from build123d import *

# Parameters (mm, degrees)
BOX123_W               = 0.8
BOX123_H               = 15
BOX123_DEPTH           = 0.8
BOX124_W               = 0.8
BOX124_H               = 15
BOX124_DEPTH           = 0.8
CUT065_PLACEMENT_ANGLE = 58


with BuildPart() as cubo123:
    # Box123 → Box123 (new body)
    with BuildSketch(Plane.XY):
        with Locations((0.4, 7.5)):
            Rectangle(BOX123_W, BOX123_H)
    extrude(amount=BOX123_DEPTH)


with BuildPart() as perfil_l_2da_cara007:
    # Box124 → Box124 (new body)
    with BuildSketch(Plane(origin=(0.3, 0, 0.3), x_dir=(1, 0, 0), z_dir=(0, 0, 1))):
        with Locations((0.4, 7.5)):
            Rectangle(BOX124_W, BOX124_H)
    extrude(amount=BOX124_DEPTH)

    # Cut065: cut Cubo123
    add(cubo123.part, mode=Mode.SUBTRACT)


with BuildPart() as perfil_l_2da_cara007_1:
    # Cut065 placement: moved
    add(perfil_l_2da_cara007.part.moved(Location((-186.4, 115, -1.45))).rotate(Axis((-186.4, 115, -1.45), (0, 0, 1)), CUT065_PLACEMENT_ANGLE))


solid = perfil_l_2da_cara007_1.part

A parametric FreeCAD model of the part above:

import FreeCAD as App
import Part
import Sketcher

V = App.Vector
Q = App.Units.Quantity

doc = App.newDocument("Part")
body = doc.addObject("PartDesign::Body", "Body")

# Sketch on XY plane
sketch1 = body.newObject("Sketcher::SketchObject", "Sketch")
sketch1.AttachmentSupport = (doc.getObject("XY_Plane"), [""])
sketch1.MapMode = "FlatFace"
sketch1.addGeometry([
    Part.LineSegment(V(0, 15, 0), V(0, 0, 0)),
    Part.LineSegment(V(0, 0, 0), V(0.8, 0, 0)),
    Part.LineSegment(V(0.8, 0, 0), V(0.8, 15, 0)),
    Part.LineSegment(V(0.8, 15, 0), V(0, 15, 0)),
], False)
sketch1.addConstraint([
    Sketcher.Constraint("Coincident", 0, 2, 1, 1),
    Sketcher.Constraint("Coincident", 1, 2, 2, 1),
    Sketcher.Constraint("Coincident", 2, 2, 3, 1),
    Sketcher.Constraint("Coincident", 3, 2, 0, 1),
    Sketcher.Constraint("Vertical", 0),
    Sketcher.Constraint("Horizontal", 1),
    Sketcher.Constraint("Vertical", 2),
    Sketcher.Constraint("Horizontal", 3),
    Sketcher.Constraint("Coincident", 0, 2, -1, 1),
    Sketcher.Constraint("DistanceY", 0, 2, 0, 1, Q("15 mm")),
    Sketcher.Constraint("DistanceX", 1, 1, 1, 2, Q("0.8 mm")),
])
pad1 = body.newObject("PartDesign::Pad", "Pad")
pad1.Profile = sketch1
pad1.Length = 0.8
body2 = doc.addObject("PartDesign::Body", "Body001")

# Sketch on XY plane
sketch2 = body2.newObject("Sketcher::SketchObject", "Sketch001")
sketch2.AttachmentSupport = (doc.getObject("XY_Plane001"), [""])
sketch2.MapMode = "FlatFace"
sketch2.AttachmentOffset = App.Placement(V(0, 0, 0.3), App.Rotation())
sketch2.addGeometry([
    Part.LineSegment(V(0.3, 15, 0), V(0.3, 0, 0)),
    Part.LineSegment(V(0.3, 0, 0), V(1.1, 0, 0)),
    Part.LineSegment(V(1.1, 0, 0), V(1.1, 15, 0)),
    Part.LineSegment(V(1.1, 15, 0), V(0.3, 15, 0)),
], False)
sketch2.addConstraint([
    Sketcher.Constraint("Coincident", 0, 2, 1, 1),
    Sketcher.Constraint("Coincident", 1, 2, 2, 1),
    Sketcher.Constraint("Coincident", 2, 2, 3, 1),
    Sketcher.Constraint("Coincident", 3, 2, 0, 1),
    Sketcher.Constraint("Vertical", 0),
    Sketcher.Constraint("Horizontal", 1),
    Sketcher.Constraint("Vertical", 2),
    Sketcher.Constraint("Horizontal", 3),
    Sketcher.Constraint("PointOnObject", 0, 2, -1),
    Sketcher.Constraint("DistanceY", 0, 2, 0, 1, Q("15 mm")),
    Sketcher.Constraint("DistanceX", 1, 1, 1, 2, Q("0.8 mm")),
    Sketcher.Constraint("DistanceX", -1, 1, 0, 2, Q("0.3 mm")),
])
pad2 = body2.newObject("PartDesign::Pad", "Pad001")
pad2.Profile = sketch2
pad2.Length = 0.8
doc.recompute()

boolean = body2.newObject("PartDesign::Boolean", "Boolean")
boolean.Type = "Cut"
boolean.addObjects([body])
body3 = doc.addObject("PartDesign::Body", "Body002")
doc.recompute()

body2.Placement = App.Placement(V(-186.4, 115, -1.45), App.Rotation(V(0, 0, 1), 58))
boolean2 = body3.newObject("PartDesign::Boolean", "Boolean001")
boolean2.Type = "Fuse"
boolean2.addObjects([body2])

doc.recompute()
